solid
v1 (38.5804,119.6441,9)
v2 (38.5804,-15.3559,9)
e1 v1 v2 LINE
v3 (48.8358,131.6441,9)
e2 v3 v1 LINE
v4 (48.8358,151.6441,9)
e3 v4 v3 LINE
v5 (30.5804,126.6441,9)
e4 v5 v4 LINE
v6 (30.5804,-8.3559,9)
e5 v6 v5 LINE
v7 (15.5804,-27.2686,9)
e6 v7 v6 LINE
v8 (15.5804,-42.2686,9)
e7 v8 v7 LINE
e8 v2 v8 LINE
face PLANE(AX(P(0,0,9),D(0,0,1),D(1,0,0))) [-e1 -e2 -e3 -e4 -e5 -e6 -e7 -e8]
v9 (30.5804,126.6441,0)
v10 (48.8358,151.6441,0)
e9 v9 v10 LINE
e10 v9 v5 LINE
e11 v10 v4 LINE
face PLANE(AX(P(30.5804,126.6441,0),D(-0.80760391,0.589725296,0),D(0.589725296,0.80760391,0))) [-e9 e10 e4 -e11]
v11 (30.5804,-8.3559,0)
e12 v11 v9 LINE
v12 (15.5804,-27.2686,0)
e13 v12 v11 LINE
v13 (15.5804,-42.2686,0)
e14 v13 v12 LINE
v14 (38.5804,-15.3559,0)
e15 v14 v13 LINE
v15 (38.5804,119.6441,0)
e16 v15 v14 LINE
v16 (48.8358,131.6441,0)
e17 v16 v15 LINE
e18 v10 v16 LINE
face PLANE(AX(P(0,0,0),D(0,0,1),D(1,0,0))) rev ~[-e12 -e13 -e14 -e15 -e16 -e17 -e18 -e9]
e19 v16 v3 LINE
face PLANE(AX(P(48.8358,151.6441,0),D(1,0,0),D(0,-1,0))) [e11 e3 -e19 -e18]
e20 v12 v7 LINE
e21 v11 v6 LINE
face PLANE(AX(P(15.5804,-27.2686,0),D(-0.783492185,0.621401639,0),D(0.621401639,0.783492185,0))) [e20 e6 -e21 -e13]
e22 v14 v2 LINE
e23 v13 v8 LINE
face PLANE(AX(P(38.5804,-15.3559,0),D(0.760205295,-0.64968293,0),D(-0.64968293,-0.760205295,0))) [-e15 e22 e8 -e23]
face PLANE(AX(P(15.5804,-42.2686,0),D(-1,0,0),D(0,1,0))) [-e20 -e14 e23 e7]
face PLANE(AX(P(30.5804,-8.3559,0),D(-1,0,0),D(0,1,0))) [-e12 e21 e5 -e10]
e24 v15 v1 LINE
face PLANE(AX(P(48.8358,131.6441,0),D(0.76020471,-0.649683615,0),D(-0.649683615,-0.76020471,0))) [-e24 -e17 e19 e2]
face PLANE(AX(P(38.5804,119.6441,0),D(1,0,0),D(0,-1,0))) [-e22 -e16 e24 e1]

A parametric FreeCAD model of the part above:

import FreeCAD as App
import Part
import Sketcher
from FreeCAD import Vector

doc = App.newDocument("Part")
body = doc.addObject("PartDesign::Body", "Body")

# Sketch on XY plane
sketch1 = doc.addObject("Sketcher::SketchObject", "Sketch")
body.addObject(sketch1)
sketch1.AttachmentSupport = (doc.XY_Plane, [""])
sketch1.MapMode = "FlatFace"
sketch1.addGeometry(Part.LineSegment(Vector(16, -27, 0), Vector(16, -42, 0)), False)
sketch1.addGeometry(Part.LineSegment(Vector(16, -42, 0), Vector(39, -15, 0)), False)
sketch1.addGeometry(Part.LineSegment(Vector(39, -15, 0), Vector(39, 120, 0)), False)
sketch1.addGeometry(Part.LineSegment(Vector(39, 120, 0), Vector(49, 132, 0)), False)
sketch1.addGeometry(Part.LineSegment(Vector(49, 132, 0), Vector(49, 152, 0)), False)
sketch1.addGeometry(Part.LineSegment(Vector(49, 152, 0), Vector(31, 127, 0)), False)
sketch1.addGeometry(Part.LineSegment(Vector(31, 127, 0), Vector(31, -8, 0)), False)
sketch1.addGeometry(Part.LineSegment(Vector(31, -8, 0), Vector(16, -27, 0)), False)
sketch1.addConstraint(Sketcher.Constraint("Coincident", 0, 2, 1, 1))
sketch1.addConstraint(Sketcher.Constraint("Coincident", 1, 2, 2, 1))
sketch1.addConstraint(Sketcher.Constraint("Coincident", 2, 2, 3, 1))
sketch1.addConstraint(Sketcher.Constraint("Coincident", 3, 2, 4, 1))
sketch1.addConstraint(Sketcher.Constraint("Coincident", 4, 2, 5, 1))
sketch1.addConstraint(Sketcher.Constraint("Coincident", 5, 2, 6, 1))
sketch1.addConstraint(Sketcher.Constraint("Coincident", 6, 2, 7, 1))
sketch1.addConstraint(Sketcher.Constraint("Coincident", 7, 2, 0, 1))
sketch1.addConstraint(Sketcher.Constraint("Vertical", 0))
sketch1.addConstraint(Sketcher.Constraint("Vertical", 2))
sketch1.addConstraint(Sketcher.Constraint("Vertical", 4))
sketch1.addConstraint(Sketcher.Constraint("Vertical", 6))
sketch1.addConstraint(Sketcher.Constraint("Parallel", 1, 3))
sketch1.addConstraint(Sketcher.Constraint("Equal", 2, 6))
sketch1.addConstraint(Sketcher.Constraint("DistanceY", 0, 2, 0, 1, 15.0))
sketch1.addConstraint(Sketcher.Constraint("DistanceY", 2, 1, 2, 2, 135.0))
sketch1.addConstraint(Sketcher.Constraint("DistanceY", 4, 1, 4, 2, 20.0))
sketch1.addConstraint(Sketcher.Constraint("DistanceX", 0, 2, 1, 2, 23.0))
sketch1.addConstraint(Sketcher.Constraint("DistanceY", 2, 2, 3, 2, 12.0))
sketch1.addConstraint(Sketcher.Constraint("DistanceY", 5, 2, 4, 2, 25.0))
sketch1.addConstraint(Sketcher.Constraint("DistanceX", 0, 2, 5, 2, 15.0))
sketch1.addConstraint(Sketcher.Constraint("Distance", 1, 35.402))
sketch1.addConstraint(Sketcher.Constraint("DistanceY", 1, 2, -1, 1, 15.356))
sketch1.addConstraint(Sketcher.Constraint("DistanceX", -1, 1, 0, 2, 15.5804))
pad1 = doc.addObject("PartDesign::Pad", "Pad")
body.addObject(pad1)
pad1.Profile = sketch1
pad1.Length = 9

doc.recompute()
